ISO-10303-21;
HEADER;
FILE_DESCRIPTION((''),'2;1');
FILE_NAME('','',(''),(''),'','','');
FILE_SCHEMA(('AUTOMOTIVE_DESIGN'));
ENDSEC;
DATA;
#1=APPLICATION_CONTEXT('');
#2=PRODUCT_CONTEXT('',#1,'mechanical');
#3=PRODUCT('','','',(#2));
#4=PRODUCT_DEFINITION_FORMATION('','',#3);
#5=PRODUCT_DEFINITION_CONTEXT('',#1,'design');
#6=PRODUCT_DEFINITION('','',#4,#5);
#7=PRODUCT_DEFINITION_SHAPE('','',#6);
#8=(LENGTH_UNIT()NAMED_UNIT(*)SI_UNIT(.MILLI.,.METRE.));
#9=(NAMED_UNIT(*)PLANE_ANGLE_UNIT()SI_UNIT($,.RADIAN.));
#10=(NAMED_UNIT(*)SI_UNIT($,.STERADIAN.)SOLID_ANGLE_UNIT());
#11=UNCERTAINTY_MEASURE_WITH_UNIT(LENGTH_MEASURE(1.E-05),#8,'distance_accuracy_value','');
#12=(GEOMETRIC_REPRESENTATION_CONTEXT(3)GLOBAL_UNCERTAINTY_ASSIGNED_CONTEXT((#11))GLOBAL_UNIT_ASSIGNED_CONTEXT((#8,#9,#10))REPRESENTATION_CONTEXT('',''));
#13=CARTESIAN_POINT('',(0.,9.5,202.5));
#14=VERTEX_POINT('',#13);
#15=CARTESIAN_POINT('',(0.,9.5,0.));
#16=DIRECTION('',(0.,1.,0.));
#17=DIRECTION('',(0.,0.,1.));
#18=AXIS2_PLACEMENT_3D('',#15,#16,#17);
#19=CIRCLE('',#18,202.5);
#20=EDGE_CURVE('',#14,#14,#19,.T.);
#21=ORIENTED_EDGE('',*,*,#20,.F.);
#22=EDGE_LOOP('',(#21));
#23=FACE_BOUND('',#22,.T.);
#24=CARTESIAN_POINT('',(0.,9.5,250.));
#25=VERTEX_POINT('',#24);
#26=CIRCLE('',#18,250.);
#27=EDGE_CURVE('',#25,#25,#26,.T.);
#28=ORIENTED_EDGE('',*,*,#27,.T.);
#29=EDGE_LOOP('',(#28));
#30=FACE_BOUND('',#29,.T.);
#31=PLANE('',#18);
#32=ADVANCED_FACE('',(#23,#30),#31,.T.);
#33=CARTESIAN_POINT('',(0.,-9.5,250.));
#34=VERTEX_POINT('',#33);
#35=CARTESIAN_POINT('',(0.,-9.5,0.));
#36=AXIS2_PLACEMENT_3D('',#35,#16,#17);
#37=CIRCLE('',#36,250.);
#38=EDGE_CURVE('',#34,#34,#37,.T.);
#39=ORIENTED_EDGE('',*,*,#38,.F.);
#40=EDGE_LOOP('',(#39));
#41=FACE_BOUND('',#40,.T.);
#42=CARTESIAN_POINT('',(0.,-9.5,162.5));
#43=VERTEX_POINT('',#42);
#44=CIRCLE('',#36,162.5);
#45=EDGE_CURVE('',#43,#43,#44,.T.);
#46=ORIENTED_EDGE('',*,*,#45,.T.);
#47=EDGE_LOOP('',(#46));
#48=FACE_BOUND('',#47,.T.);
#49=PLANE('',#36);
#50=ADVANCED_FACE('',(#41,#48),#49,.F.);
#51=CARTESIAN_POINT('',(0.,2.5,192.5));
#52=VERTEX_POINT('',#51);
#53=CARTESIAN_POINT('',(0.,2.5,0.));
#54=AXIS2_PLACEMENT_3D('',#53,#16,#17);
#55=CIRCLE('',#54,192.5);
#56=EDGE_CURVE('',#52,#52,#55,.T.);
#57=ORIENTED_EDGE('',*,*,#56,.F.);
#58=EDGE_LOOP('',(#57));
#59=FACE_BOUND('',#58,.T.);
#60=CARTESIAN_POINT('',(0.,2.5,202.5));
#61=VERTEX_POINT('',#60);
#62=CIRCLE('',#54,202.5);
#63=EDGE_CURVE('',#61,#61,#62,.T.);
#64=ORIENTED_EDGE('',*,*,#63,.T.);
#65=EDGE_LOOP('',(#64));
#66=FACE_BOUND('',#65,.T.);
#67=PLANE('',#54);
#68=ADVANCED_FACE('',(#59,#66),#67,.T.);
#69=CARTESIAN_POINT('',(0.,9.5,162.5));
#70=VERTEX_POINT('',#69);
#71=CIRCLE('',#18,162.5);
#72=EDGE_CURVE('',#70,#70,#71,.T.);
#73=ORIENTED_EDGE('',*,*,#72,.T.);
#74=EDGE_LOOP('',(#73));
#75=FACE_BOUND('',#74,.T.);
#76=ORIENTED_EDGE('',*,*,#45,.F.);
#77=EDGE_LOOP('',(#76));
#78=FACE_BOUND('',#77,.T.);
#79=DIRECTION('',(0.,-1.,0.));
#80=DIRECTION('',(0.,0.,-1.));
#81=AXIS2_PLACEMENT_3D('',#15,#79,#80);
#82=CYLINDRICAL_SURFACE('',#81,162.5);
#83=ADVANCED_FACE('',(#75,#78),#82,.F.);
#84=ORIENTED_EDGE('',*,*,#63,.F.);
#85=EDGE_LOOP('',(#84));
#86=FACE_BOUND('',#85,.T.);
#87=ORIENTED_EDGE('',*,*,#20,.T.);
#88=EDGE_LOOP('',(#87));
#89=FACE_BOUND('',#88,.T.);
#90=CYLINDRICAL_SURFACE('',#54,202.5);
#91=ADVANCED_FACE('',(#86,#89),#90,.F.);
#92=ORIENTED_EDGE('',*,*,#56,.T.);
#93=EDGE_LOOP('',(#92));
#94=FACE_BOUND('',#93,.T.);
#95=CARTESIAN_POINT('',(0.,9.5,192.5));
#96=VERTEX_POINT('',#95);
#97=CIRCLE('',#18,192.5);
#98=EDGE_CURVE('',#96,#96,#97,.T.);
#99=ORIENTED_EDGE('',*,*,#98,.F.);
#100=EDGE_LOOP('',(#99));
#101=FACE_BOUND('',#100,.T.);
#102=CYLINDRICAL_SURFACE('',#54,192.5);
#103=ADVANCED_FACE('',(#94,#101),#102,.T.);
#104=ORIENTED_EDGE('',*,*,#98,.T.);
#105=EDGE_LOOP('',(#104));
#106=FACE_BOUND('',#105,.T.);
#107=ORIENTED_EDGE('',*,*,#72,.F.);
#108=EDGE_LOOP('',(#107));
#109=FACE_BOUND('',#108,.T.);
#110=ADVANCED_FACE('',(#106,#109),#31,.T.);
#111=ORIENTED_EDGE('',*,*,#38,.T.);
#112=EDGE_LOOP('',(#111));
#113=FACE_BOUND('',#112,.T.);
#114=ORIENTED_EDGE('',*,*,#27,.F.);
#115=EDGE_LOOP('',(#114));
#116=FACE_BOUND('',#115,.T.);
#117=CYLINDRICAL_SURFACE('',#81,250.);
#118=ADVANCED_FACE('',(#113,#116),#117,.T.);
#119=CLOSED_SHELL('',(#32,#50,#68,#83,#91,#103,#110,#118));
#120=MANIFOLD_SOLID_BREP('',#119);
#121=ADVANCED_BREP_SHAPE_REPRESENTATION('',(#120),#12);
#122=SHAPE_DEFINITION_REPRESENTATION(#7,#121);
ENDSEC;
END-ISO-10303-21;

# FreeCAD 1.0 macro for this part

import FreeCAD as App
import Part
import Sketcher
Q = App.Units.Quantity

doc = App.newDocument("Part")
body = doc.addObject("PartDesign::Body", "Body")

# Sketch on XZ plane
sketch1 = doc.addObject("Sketcher::SketchObject", "Sketch")
body.addObject(sketch1)
sketch1.AttachmentSupport = (doc.XZ_Plane, [""])
sketch1.MapMode = "FlatFace"
sketch1.addGeometry(Part.Circle(App.Vector(0, 0, 0), App.Vector(0, 0, 1), 250), False)
sketch1.addGeometry(Part.Circle(App.Vector(0, 0, 0), App.Vector(0, 0, 1), 162), False)
sketch1.addConstraint(Sketcher.Constraint("Coincident", 0, 3, -1, 1))
sketch1.addConstraint(Sketcher.Constraint("Coincident", 1, 3, -1, 1))
sketch1.addConstraint(Sketcher.Constraint("Diameter", 0, Q("500 mm")))
sketch1.addConstraint(Sketcher.Constraint("Diameter", 1, Q("325 mm")))
pad1 = doc.addObject("PartDesign::Pad", "Pad")
body.addObject(pad1)
pad1.Profile = sketch1
pad1.Length = 19
pad1.Midplane = True

# Sketch on XZ plane
sketch2 = doc.addObject("Sketcher::SketchObject", "Sketch001")
body.addObject(sketch2)
sketch2.AttachmentSupport = (doc.XZ_Plane, [""])
sketch2.MapMode = "FlatFace"
sketch2.AttachmentOffset = App.Placement(App.Vector(0, 0, -9.5), App.Rotation())
sketch2.addGeometry(Part.Circle(App.Vector(0, 0, 0), App.Vector(0, 0, 1), 202), False)
sketch2.addGeometry(Part.Circle(App.Vector(0, 0, 0), App.Vector(0, 0, 1), 192), False)
sketch2.addConstraint(Sketcher.Constraint("Coincident", 0, 3, -1, 1))
sketch2.addConstraint(Sketcher.Constraint("Coincident", 1, 3, -1, 1))
sketch2.addConstraint(Sketcher.Constraint("Diameter", 0, Q("405 mm")))
sketch2.addConstraint(Sketcher.Constraint("Diameter", 1, Q("385 mm")))
pocket1 = doc.addObject("PartDesign::Pocket", "Pocket")
body.addObject(pocket1)
pocket1.Profile = sketch2
pocket1.Length = 7
pocket1.Reversed = True

doc.recompute()
